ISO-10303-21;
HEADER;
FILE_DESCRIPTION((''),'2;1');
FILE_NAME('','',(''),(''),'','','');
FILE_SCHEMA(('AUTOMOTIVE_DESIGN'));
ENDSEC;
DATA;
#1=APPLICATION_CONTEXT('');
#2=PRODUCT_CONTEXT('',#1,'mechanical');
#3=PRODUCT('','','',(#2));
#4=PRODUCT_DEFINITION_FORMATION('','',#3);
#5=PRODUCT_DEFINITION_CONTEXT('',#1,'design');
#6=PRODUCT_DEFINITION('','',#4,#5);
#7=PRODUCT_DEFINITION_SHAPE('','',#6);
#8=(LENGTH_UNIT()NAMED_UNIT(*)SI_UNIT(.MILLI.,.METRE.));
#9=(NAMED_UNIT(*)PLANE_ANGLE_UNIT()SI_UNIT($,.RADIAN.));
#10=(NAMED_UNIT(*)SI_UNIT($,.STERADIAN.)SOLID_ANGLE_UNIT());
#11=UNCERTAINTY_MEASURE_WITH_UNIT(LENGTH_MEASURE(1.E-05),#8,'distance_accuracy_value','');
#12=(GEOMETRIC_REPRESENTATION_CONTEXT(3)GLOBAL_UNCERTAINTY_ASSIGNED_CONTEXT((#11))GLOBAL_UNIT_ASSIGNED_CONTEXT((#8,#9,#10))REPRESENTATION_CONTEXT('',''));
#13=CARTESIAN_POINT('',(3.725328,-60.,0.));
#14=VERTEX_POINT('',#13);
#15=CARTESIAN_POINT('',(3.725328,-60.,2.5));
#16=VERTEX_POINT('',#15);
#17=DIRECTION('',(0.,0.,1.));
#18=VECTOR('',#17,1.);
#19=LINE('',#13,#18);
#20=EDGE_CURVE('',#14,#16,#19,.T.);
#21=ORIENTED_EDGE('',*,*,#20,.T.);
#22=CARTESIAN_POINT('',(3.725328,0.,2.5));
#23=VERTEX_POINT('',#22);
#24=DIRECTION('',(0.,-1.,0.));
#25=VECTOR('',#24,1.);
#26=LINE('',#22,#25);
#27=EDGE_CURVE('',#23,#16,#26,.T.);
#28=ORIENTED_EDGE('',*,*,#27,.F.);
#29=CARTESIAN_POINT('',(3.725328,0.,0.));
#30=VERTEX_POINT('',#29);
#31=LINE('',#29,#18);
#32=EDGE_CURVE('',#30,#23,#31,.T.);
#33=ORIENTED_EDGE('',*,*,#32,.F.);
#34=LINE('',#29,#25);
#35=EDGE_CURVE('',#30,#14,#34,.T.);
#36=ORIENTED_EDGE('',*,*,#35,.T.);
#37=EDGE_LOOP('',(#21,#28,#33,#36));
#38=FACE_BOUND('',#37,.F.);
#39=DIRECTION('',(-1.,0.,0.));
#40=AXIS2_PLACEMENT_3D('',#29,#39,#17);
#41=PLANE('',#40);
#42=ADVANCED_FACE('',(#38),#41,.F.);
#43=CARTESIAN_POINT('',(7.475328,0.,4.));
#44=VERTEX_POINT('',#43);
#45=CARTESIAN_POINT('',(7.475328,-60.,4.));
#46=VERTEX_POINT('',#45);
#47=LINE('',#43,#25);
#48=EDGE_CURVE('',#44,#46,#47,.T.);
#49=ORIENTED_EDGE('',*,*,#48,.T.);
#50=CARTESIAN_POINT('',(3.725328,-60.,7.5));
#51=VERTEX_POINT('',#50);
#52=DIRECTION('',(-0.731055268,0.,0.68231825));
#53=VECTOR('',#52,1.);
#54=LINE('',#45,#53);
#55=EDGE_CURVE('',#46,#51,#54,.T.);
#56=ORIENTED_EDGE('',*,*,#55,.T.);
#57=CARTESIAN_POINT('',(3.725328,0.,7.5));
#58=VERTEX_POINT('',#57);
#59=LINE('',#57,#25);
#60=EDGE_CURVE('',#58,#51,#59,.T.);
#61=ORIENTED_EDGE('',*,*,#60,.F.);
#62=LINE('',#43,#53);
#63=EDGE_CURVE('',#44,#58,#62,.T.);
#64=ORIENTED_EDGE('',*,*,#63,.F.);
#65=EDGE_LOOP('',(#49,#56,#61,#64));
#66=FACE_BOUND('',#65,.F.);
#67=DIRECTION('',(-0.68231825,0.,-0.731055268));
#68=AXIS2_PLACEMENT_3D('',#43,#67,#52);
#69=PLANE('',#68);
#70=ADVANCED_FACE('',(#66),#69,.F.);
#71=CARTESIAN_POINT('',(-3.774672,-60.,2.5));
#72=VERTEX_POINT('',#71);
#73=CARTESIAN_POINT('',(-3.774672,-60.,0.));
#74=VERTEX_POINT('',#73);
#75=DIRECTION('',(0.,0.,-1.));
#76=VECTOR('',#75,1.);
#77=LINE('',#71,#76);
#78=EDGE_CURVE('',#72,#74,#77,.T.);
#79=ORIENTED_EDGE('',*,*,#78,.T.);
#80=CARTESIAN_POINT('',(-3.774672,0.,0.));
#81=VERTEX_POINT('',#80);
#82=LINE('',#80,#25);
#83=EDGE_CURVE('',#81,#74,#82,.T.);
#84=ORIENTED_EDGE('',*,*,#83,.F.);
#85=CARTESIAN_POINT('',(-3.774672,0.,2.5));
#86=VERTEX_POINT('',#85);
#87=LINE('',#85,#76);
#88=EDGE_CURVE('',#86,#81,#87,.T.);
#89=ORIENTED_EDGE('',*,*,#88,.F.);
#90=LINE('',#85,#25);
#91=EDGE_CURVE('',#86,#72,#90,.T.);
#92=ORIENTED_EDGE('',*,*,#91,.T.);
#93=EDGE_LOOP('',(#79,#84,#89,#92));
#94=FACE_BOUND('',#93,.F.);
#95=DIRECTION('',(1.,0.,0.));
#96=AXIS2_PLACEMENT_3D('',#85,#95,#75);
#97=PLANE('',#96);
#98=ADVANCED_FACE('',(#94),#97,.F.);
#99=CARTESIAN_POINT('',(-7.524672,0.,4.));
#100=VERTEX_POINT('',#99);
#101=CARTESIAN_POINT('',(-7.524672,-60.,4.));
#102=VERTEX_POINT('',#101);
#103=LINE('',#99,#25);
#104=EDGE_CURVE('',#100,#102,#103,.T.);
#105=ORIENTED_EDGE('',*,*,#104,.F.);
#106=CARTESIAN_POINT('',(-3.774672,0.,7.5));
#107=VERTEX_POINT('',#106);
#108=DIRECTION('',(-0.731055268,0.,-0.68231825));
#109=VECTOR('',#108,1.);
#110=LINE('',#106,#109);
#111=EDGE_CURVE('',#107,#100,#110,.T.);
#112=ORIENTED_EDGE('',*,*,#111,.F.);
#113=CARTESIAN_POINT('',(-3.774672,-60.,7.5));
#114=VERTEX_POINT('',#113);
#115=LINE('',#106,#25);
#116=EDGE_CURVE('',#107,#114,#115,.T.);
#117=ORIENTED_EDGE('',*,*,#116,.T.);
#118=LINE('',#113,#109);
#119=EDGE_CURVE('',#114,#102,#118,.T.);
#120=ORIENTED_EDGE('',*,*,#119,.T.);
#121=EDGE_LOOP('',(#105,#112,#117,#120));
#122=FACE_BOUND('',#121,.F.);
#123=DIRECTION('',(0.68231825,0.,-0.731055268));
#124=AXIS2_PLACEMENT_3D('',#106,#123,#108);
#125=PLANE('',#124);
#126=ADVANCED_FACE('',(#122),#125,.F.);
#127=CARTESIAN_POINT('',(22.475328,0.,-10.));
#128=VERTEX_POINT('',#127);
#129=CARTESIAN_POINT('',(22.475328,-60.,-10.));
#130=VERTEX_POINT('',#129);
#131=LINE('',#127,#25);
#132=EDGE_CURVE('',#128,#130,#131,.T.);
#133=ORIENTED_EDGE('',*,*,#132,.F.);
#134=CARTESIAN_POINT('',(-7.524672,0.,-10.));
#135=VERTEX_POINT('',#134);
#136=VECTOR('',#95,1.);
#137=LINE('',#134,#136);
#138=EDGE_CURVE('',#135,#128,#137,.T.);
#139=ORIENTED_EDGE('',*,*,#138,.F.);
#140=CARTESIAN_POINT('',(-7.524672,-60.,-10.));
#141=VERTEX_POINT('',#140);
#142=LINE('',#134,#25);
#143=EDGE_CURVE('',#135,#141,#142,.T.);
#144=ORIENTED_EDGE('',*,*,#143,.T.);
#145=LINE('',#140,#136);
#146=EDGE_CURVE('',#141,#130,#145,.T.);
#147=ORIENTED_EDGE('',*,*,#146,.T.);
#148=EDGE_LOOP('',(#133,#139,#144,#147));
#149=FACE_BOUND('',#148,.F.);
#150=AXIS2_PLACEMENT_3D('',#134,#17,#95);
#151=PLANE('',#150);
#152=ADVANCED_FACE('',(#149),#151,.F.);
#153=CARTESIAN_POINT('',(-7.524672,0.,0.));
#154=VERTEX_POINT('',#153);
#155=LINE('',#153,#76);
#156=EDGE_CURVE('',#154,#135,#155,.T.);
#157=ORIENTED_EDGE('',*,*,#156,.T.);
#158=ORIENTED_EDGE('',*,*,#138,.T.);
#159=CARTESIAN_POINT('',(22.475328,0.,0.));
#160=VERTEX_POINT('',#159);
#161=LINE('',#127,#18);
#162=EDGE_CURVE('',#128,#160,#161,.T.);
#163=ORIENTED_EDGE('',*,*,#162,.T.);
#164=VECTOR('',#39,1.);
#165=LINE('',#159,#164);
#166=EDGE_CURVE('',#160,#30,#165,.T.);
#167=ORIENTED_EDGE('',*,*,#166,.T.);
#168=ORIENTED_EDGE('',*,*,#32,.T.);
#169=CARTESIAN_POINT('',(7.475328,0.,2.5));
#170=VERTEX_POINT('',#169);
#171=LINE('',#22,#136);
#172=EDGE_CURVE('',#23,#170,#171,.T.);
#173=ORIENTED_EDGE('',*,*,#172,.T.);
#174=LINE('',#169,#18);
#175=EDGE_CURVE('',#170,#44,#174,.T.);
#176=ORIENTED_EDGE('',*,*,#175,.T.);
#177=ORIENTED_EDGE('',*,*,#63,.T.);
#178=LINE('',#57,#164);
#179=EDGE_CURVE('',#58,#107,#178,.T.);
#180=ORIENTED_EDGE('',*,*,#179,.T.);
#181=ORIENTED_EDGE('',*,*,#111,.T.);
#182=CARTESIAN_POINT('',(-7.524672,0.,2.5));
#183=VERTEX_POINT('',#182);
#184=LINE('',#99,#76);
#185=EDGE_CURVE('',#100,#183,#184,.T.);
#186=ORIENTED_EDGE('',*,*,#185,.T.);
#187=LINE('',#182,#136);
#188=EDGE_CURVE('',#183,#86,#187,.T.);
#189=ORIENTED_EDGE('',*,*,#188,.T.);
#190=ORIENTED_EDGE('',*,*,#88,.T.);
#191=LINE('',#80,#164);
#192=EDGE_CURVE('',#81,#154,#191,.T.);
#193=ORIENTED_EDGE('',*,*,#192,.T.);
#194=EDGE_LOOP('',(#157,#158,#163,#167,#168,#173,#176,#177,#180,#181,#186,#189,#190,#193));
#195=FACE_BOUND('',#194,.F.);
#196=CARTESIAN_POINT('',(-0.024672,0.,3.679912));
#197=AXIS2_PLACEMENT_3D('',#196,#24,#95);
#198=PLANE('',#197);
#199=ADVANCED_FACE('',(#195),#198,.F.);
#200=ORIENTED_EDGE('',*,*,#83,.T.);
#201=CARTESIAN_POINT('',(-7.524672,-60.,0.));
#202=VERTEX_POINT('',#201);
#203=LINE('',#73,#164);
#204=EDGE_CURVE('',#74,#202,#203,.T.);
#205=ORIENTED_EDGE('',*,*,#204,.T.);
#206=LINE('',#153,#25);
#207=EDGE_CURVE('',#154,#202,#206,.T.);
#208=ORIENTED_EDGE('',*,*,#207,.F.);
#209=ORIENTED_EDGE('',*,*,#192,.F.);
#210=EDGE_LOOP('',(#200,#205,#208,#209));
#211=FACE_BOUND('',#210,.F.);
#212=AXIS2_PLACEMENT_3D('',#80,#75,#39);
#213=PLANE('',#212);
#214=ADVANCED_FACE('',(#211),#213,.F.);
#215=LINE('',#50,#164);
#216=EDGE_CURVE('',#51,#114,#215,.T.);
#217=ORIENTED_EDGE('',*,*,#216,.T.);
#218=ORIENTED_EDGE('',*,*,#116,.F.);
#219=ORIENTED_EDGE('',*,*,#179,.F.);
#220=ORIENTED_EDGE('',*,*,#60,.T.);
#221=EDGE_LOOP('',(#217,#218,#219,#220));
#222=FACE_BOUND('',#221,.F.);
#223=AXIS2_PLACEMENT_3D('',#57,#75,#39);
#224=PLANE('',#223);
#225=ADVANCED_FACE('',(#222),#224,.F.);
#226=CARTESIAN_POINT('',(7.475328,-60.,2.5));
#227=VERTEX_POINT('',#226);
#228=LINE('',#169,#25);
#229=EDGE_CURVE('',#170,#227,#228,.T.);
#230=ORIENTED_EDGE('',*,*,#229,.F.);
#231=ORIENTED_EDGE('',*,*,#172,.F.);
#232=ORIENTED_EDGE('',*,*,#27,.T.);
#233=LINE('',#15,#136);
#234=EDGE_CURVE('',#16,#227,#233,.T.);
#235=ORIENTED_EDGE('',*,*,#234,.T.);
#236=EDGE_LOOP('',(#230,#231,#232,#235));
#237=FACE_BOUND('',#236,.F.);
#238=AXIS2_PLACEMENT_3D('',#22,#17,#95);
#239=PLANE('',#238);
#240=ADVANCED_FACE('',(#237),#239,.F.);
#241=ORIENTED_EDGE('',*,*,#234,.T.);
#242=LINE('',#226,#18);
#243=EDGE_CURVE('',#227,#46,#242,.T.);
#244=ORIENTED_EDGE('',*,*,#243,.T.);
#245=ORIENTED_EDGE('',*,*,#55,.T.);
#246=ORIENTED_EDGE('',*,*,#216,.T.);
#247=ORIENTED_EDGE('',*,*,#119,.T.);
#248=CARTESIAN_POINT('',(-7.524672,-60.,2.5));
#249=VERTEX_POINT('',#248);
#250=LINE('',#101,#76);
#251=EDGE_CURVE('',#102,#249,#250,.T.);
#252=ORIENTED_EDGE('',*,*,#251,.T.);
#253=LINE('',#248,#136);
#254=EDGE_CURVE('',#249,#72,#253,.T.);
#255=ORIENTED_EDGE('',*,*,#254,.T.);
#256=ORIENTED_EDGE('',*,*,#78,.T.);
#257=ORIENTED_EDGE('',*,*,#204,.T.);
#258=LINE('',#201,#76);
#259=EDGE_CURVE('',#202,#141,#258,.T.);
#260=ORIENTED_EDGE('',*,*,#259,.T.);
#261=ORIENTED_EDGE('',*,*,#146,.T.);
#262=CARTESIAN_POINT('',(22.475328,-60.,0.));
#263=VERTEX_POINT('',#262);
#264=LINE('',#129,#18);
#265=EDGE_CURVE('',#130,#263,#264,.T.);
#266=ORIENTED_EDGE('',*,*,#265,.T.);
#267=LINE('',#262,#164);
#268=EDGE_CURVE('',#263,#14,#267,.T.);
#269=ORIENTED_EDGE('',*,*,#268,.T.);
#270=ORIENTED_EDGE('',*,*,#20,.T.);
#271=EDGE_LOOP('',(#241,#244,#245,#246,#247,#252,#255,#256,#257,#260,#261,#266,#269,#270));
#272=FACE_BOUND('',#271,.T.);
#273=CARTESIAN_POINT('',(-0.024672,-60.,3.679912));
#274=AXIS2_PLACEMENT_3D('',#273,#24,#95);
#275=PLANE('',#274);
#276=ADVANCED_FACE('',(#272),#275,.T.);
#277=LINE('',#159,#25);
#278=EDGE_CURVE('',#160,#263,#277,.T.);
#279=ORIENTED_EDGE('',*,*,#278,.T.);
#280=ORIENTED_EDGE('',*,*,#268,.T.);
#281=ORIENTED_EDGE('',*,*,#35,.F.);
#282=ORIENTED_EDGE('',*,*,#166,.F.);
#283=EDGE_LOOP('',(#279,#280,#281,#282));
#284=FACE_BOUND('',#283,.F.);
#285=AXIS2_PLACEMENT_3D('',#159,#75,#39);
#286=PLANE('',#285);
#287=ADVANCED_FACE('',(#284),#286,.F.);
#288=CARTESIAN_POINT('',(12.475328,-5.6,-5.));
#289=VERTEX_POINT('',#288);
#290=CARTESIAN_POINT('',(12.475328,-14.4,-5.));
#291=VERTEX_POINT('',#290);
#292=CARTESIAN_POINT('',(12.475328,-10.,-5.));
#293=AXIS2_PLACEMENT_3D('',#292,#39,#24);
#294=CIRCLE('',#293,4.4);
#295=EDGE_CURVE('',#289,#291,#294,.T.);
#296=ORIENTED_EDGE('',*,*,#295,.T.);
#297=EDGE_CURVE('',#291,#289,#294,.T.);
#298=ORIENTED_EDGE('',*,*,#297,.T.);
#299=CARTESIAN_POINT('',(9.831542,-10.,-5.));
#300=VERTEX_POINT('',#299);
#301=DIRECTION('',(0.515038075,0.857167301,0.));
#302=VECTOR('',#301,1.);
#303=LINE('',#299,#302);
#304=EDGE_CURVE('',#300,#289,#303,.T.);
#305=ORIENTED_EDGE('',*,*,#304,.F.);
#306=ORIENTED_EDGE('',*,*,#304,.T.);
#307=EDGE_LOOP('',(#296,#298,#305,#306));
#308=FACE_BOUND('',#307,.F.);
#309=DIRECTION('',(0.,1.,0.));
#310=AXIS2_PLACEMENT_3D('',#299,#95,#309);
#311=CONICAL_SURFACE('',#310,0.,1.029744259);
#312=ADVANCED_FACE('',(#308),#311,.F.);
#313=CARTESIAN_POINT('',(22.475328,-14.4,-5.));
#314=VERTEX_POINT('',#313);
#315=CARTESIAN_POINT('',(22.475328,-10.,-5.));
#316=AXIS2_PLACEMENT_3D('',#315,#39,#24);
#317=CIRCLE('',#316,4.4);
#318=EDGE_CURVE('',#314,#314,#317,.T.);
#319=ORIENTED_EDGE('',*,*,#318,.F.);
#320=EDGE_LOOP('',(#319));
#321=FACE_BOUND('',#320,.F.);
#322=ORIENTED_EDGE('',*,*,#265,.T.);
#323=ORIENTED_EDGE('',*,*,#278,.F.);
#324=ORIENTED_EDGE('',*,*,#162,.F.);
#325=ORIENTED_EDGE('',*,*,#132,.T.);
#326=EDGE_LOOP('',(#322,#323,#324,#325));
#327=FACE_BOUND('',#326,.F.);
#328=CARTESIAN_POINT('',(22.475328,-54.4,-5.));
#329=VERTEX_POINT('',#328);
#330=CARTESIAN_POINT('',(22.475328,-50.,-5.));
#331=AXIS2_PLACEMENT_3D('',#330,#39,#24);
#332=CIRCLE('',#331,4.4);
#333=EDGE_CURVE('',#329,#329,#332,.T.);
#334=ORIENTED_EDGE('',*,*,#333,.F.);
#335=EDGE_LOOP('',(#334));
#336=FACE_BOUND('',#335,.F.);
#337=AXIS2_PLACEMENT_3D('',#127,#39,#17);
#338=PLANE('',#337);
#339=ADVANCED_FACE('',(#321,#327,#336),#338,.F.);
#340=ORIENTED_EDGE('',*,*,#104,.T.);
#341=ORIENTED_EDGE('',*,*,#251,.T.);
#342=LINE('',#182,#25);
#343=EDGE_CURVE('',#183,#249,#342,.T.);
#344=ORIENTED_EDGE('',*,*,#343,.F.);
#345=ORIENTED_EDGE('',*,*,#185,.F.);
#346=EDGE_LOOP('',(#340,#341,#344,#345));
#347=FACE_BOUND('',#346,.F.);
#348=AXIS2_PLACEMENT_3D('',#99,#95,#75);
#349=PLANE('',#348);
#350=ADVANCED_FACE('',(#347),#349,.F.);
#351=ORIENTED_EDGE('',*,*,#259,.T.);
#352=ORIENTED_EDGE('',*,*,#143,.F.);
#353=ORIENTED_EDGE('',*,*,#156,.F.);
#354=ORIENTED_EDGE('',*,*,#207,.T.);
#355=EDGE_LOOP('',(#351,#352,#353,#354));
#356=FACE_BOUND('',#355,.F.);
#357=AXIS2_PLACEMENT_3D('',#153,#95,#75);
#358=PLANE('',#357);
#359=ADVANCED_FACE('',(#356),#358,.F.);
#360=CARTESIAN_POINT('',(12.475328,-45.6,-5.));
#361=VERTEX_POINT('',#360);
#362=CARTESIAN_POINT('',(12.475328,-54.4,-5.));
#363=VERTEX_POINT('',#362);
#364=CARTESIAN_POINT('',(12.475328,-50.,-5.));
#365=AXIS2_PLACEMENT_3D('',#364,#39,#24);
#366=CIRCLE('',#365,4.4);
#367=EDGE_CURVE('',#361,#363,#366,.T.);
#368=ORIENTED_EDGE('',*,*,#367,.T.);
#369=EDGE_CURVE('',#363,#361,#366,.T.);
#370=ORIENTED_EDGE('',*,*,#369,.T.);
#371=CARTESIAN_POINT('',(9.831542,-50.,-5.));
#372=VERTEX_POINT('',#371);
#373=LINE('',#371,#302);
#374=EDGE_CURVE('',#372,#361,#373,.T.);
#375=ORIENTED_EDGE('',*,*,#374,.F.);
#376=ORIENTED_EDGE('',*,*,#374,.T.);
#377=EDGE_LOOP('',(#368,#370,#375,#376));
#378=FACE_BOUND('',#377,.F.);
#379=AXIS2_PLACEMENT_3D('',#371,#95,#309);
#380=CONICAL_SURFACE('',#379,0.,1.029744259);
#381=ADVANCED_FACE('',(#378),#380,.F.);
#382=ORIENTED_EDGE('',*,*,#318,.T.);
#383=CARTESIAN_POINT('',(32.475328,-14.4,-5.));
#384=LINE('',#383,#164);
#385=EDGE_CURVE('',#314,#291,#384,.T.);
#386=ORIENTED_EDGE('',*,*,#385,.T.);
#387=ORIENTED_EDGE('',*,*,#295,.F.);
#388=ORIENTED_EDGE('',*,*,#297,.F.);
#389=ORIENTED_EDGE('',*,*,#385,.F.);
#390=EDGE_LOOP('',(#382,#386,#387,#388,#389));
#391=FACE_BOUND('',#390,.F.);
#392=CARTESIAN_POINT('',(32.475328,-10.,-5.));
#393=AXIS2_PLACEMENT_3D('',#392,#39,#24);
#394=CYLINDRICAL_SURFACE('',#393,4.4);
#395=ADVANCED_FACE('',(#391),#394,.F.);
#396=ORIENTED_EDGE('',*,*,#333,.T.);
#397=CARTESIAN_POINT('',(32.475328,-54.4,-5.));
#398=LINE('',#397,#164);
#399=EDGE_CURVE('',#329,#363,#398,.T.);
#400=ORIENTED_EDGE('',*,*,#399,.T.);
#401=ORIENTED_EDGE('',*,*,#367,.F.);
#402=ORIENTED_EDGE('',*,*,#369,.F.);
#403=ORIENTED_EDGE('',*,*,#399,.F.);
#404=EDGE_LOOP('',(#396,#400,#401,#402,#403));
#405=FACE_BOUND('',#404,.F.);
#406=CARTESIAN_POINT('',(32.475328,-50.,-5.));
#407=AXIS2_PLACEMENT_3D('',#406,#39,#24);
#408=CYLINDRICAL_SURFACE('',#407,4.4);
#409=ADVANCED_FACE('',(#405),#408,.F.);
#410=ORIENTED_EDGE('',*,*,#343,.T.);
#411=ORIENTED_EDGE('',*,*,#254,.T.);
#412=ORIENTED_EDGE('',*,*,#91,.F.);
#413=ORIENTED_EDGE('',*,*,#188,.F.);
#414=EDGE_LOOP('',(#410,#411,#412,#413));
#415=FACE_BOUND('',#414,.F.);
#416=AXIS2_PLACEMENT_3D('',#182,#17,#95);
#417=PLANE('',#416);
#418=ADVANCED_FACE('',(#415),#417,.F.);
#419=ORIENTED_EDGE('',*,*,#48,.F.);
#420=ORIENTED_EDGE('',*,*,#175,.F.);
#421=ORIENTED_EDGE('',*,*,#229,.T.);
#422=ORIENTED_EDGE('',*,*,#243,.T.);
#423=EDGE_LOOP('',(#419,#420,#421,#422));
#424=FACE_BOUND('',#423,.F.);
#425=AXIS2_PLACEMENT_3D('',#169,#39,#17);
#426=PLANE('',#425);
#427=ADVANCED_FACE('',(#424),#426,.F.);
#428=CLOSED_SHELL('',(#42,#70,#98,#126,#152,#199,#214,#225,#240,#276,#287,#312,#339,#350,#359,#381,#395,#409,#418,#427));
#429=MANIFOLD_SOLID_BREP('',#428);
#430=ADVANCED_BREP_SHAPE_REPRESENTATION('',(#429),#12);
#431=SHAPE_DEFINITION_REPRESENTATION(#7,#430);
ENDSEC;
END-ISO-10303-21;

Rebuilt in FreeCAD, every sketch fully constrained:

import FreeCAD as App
import Part
import Sketcher
from FreeCAD import Vector

doc = App.newDocument("Part")
body = doc.addObject("PartDesign::Body", "Body")

sketch1 = body.newObject("Sketcher::SketchObject", "Sketch")
sketch1.AttachmentSupport = (doc.getObject("XZ_Plane"), [""])
sketch1.MapMode = "FlatFace"
sketch1.addGeometry(Part.LineSegment(Vector(-3.8, 2.5, 0), Vector(-3.8, 0, 0)), False)
sketch1.addGeometry(Part.LineSegment(Vector(-3.8, 0, 0), Vector(-7.5, 0, 0)), False)
sketch1.addGeometry(Part.LineSegment(Vector(-7.5, 0, 0), Vector(-7.5, -10, 0)), False)
sketch1.addGeometry(Part.LineSegment(Vector(-7.5, -10, 0), Vector(22.5, -10, 0)), False)
sketch1.addGeometry(Part.LineSegment(Vector(22.5, -10, 0), Vector(22.5, 0, 0)), False)
sketch1.addGeometry(Part.LineSegment(Vector(22.5, 0, 0), Vector(3.7, 0, 0)), False)
sketch1.addGeometry(Part.LineSegment(Vector(3.7, 0, 0), Vector(3.7, 2.5, 0)), False)
sketch1.addGeometry(Part.LineSegment(Vector(3.7, 2.5, 0), Vector(7.5, 2.5, 0)), False)
sketch1.addGeometry(Part.LineSegment(Vector(7.5, 2.5, 0), Vector(7.5, 4, 0)), False)
sketch1.addGeometry(Part.LineSegment(Vector(7.5, 4, 0), Vector(3.7, 7.5, 0)), False)
sketch1.addGeometry(Part.LineSegment(Vector(3.7, 7.5, 0), Vector(-3.8, 7.5, 0)), False)
sketch1.addGeometry(Part.LineSegment(Vector(-3.8, 7.5, 0), Vector(-7.5, 4, 0)), False)
sketch1.addGeometry(Part.LineSegment(Vector(-7.5, 4, 0), Vector(-7.5, 2.5, 0)), False)
sketch1.addGeometry(Part.LineSegment(Vector(-7.5, 2.5, 0), Vector(-3.8, 2.5, 0)), False)
sketch1.addConstraint(Sketcher.Constraint("Coincident", 0, 2, 1, 1))
sketch1.addConstraint(Sketcher.Constraint("Coincident", 1, 2, 2, 1))
sketch1.addConstraint(Sketcher.Constraint("Coincident", 2, 2, 3, 1))
sketch1.addConstraint(Sketcher.Constraint("Coincident", 3, 2, 4, 1))
sketch1.addConstraint(Sketcher.Constraint("Coincident", 4, 2, 5, 1))
sketch1.addConstraint(Sketcher.Constraint("Coincident", 5, 2, 6, 1))
sketch1.addConstraint(Sketcher.Constraint("Coincident", 6, 2, 7, 1))
sketch1.addConstraint(Sketcher.Constraint("Coincident", 7, 2, 8, 1))
sketch1.addConstraint(Sketcher.Constraint("Coincident", 8, 2, 9, 1))
sketch1.addConstraint(Sketcher.Constraint("Coincident", 9, 2, 10, 1))
sketch1.addConstraint(Sketcher.Constraint("Coincident", 10, 2, 11, 1))
sketch1.addConstraint(Sketcher.Constraint("Coincident", 11, 2, 12, 1))
sketch1.addConstraint(Sketcher.Constraint("Coincident", 12, 2, 13, 1))
sketch1.addConstraint(Sketcher.Constraint("Coincident", 13, 2, 0, 1))
sketch1.addConstraint(Sketcher.Constraint("Vertical", 0))
sketch1.addConstraint(Sketcher.Constraint("Horizontal", 1))
sketch1.addConstraint(Sketcher.Constraint("Vertical", 2))
sketch1.addConstraint(Sketcher.Constraint("Horizontal", 3))
sketch1.addConstraint(Sketcher.Constraint("Vertical", 4))
sketch1.addConstraint(Sketcher.Constraint("Horizontal", 5))
sketch1.addConstraint(Sketcher.Constraint("Vertical", 6))
sketch1.addConstraint(Sketcher.Constraint("Horizontal", 7))
sketch1.addConstraint(Sketcher.Constraint("Vertical", 8))
sketch1.addConstraint(Sketcher.Constraint("Horizontal", 10))
sketch1.addConstraint(Sketcher.Constraint("Vertical", 12))
sketch1.addConstraint(Sketcher.Constraint("Horizontal", 13))
sketch1.addConstraint(Sketcher.Constraint("PointOnObject", 0, 2, -1))
sketch1.addConstraint(Sketcher.Constraint("PointOnObject", 4, 2, -1))
sketch1.addConstraint(Sketcher.Constraint("Horizontal", 8, 2, 11, 2))
sketch1.addConstraint(Sketcher.Constraint("Horizontal", 7, 2, 12, 2))
sketch1.addConstraint(Sketcher.Constraint("Vertical", 6, 2, 9, 2))
sketch1.addConstraint(Sketcher.Constraint("Vertical", 0, 2, 10, 2))
sketch1.addConstraint(Sketcher.Constraint("Vertical", 2, 2, 11, 2))
sketch1.addConstraint(Sketcher.Constraint("Equal", 1, 7))
sketch1.addConstraint(Sketcher.Constraint("DistanceX", 3, 1, 3, 2, 30.0))
sketch1.addConstraint(Sketcher.Constraint("DistanceY", 2, 2, 2, 1, 10.0))
sketch1.addConstraint(Sketcher.Constraint("DistanceX", 10, 2, 10, 1, 7.5))
sketch1.addConstraint(Sketcher.Constraint("DistanceY", 0, 2, 0, 1, 2.5))
sketch1.addConstraint(Sketcher.Constraint("DistanceY", 8, 1, 8, 2, 1.5))
sketch1.addConstraint(Sketcher.Constraint("DistanceX", 7, 2, 4, 2, 15.0))
sketch1.addConstraint(Sketcher.Constraint("DistanceY", 6, 2, 9, 2, 5.0))
sketch1.addConstraint(Sketcher.Constraint("DistanceX", 0, 2, -1, 1, 3.774672))
pad1 = body.newObject("PartDesign::Pad", "Pad")
pad1.Profile = sketch1
pad1.Length = 60

sketch2 = body.newObject("Sketcher::SketchObject", "Sketch001")
sketch2.AttachmentSupport = (doc.getObject("YZ_Plane"), [""])
sketch2.MapMode = "FlatFace"
sketch2.AttachmentOffset = App.Placement(Vector(0, 0, 22.475328), App.Rotation())
sketch2.addGeometry(Part.Circle(Vector(-50, -5, 0), Vector(0, 0, 1), 4.4), False)
sketch2.addGeometry(Part.Circle(Vector(-10, -5, 0), Vector(0, 0, 1), 4.4), False)
sketch2.addConstraint(Sketcher.Constraint("Equal", 0, 1))
sketch2.addConstraint(Sketcher.Constraint("Horizontal", 0, 3, 1, 3))
sketch2.addConstraint(Sketcher.Constraint("Diameter", 0, 8.8))
sketch2.addConstraint(Sketcher.Constraint("DistanceX", 0, 3, -1, 1, 50.0))
sketch2.addConstraint(Sketcher.Constraint("DistanceY", 0, 3, -1, 1, 5.0))
sketch2.addConstraint(Sketcher.Constraint("DistanceX", 1, 3, -1, 1, 10.0))
doc.recompute()
hole = body.newObject("PartDesign::Hole", "Hole")
hole.Profile = sketch2
hole.ThreadType = "None"
hole.Diameter = 8.8
hole.DepthType = "Dimension"
hole.Depth = 10
hole.DrillPoint = "Angled"
hole.DrillPointAngle = 118

doc.recompute()
